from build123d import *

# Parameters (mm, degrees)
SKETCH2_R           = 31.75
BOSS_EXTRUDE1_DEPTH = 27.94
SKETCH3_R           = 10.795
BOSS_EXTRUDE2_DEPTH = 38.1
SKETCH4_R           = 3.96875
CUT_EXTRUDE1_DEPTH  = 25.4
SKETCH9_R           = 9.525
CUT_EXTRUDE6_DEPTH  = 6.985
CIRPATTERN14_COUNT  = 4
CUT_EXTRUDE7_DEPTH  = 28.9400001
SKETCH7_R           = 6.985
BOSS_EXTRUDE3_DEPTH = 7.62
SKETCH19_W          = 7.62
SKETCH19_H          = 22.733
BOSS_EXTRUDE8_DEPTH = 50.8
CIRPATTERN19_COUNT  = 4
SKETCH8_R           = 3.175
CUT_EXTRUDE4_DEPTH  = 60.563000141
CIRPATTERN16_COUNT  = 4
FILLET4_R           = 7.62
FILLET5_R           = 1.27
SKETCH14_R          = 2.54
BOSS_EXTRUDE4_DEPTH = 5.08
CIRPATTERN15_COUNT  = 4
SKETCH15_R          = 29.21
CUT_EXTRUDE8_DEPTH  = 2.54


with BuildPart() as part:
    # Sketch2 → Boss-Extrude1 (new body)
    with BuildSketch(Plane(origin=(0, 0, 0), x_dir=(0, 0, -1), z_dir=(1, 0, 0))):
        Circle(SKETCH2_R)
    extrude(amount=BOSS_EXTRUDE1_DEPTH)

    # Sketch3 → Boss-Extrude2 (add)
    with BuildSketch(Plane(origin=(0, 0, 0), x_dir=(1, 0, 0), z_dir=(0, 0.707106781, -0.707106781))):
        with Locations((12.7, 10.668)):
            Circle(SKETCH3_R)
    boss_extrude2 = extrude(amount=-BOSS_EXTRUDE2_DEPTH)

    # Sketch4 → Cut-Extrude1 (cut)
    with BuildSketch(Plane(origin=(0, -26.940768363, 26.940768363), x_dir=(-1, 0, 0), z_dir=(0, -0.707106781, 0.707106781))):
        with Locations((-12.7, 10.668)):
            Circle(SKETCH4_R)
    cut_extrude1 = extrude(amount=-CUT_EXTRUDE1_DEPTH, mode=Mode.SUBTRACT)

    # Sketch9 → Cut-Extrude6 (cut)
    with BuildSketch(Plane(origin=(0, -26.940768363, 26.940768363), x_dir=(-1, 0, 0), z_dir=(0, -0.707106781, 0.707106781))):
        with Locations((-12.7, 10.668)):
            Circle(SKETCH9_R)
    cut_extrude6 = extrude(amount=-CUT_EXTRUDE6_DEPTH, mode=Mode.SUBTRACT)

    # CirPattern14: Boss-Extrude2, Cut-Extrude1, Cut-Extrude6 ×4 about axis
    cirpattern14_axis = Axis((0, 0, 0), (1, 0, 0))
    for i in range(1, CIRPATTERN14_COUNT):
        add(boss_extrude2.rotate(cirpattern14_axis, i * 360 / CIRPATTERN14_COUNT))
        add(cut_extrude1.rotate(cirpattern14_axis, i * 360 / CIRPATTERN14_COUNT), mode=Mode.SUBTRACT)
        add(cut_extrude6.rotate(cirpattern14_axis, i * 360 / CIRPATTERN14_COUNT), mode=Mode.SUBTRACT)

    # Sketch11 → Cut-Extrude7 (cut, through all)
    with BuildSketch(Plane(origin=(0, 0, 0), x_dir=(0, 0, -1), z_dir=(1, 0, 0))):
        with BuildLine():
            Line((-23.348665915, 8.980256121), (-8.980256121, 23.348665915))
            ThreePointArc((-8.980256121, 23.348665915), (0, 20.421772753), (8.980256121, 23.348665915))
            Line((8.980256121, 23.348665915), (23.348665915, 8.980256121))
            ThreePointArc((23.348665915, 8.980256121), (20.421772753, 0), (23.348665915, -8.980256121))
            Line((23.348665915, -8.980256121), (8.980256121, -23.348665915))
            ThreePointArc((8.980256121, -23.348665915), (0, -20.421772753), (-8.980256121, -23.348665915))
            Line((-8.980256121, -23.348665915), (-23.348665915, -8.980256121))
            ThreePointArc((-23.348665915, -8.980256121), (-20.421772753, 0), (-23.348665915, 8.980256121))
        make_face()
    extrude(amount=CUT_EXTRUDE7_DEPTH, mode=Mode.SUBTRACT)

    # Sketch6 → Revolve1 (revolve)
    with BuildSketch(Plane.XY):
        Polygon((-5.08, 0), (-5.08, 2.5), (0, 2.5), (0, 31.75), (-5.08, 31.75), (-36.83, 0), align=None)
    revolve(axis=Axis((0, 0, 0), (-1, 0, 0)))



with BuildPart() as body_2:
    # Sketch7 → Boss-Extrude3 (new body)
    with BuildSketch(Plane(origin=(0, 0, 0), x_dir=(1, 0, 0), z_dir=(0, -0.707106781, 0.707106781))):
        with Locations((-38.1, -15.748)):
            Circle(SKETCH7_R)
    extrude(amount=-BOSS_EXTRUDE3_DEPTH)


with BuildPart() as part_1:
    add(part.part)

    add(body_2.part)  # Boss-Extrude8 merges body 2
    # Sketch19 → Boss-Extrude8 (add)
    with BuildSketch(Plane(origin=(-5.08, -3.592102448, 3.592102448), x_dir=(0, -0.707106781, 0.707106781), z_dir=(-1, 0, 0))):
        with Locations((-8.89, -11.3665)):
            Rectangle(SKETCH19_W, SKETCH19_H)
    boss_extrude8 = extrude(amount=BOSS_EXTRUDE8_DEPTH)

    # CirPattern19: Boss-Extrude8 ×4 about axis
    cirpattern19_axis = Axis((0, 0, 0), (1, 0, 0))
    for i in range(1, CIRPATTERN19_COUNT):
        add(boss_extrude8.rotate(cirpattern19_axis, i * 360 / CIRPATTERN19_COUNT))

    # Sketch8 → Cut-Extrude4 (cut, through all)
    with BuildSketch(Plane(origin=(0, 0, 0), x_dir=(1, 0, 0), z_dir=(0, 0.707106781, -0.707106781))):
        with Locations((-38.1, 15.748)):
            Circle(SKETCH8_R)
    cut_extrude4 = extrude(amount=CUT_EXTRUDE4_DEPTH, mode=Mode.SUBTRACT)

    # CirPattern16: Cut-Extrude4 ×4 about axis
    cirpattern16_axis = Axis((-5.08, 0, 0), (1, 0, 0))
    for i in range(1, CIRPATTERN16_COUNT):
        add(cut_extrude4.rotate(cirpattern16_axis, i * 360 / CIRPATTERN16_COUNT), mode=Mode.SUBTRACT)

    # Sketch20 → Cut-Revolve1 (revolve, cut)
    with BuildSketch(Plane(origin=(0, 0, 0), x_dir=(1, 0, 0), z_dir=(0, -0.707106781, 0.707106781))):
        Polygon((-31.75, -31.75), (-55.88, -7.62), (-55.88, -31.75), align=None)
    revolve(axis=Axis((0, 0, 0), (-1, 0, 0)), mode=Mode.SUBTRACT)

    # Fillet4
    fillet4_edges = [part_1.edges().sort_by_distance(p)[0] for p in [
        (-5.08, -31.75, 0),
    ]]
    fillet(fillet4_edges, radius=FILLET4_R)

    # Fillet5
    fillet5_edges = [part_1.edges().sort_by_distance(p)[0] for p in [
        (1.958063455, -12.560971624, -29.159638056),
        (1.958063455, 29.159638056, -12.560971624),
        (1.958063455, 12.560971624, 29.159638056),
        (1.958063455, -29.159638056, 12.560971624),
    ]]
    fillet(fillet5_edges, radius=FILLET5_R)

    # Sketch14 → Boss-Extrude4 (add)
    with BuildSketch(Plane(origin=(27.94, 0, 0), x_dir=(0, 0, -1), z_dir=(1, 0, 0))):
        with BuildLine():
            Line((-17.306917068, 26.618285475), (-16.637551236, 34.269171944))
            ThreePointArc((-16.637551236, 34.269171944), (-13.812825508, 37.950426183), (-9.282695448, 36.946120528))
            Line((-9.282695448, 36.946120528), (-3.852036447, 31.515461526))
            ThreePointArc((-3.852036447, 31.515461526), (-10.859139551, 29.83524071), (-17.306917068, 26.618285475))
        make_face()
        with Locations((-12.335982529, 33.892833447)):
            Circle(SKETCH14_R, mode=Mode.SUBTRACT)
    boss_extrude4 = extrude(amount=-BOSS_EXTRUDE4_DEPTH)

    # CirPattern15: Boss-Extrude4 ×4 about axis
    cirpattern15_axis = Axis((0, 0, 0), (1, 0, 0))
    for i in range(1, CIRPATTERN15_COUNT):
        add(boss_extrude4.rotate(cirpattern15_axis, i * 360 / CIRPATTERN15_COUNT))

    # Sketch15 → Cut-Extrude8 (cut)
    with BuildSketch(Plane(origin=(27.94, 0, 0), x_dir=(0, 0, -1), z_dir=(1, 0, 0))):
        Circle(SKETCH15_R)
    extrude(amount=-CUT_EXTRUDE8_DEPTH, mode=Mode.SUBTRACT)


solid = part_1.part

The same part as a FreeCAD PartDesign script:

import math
import FreeCAD as App
import Part
import Sketcher
Q = App.Units.Quantity


def edges_at(feature, points):
    """Names of the edges that pass closest to the given points."""
    edges = feature.Shape.Edges
    near = lambda p: min(range(len(edges)), key=lambda i: edges[i].distToShape(Part.Vertex(*p))[0])
    return sorted({f"Edge{near(p) + 1}" for p in points})

doc = App.newDocument("Part")
body = doc.addObject("PartDesign::Body", "Body")

sketch1 = body.newObject("Sketcher::SketchObject", "Sketch")
sketch1.AttachmentSupport = (doc.getObject("YZ_Plane"), [""])
sketch1.MapMode = "FlatFace"
sketch1.addGeometry(Part.Circle(App.Vector(0, 0, 0), App.Vector(0, 0, 1), 32), False)
sketch1.addConstraint(Sketcher.Constraint("Coincident", 0, 3, -1, 1))
sketch1.addConstraint(Sketcher.Constraint("Diameter", 0, Q("2.5 in")))
pad1 = body.newObject("PartDesign::Pad", "Pad")
pad1.Profile = sketch1
pad1.Length = Q("1.1 in")

sketch2 = body.newObject("Sketcher::SketchObject", "Sketch001")
sketch2.Placement = App.Placement(App.Vector(0, 0, 0), App.Rotation(App.Vector(1, 0, 0), App.Vector(0, -0.707106781, -0.707106781), App.Vector(0, 0.707106781, -0.707106781), "ZXY"))
sketch2.addGeometry(Part.Circle(App.Vector(13, 11, 0), App.Vector(0, 0, 1), 11), False)
sketch2.addConstraint(Sketcher.Constraint("Diameter", 0, Q("0.85 in")))
sketch2.addConstraint(Sketcher.Constraint("DistanceX", -1, 1, 0, 3, Q("0.5 in")))
sketch2.addConstraint(Sketcher.Constraint("DistanceY", -1, 1, 0, 3, Q("0.42 in")))
pad2 = body.newObject("PartDesign::Pad", "Pad001")
pad2.Profile = sketch2
pad2.Length = Q("1.5 in")
pad2.Reversed = True

sketch3 = body.newObject("Sketcher::SketchObject", "Sketch002")
sketch3.Placement = App.Placement(App.Vector(0, -26.940768, 26.940768), App.Rotation(App.Vector(-1, 0, 0), App.Vector(0, -0.707106781, -0.707106781), App.Vector(0, -0.707106781, 0.707106781), "ZXY"))
sketch3.addGeometry(Part.Circle(App.Vector(-12.7, 10.7, 0), App.Vector(0, 0, 1), 4), False)
sketch3.addConstraint(Sketcher.Constraint("Diameter", 0, Q("0.3125 in")))
sketch3.addConstraint(Sketcher.Constraint("DistanceX", 0, 3, -1, 1, Q("0.5 in")))
sketch3.addConstraint(Sketcher.Constraint("DistanceY", -1, 1, 0, 3, Q("0.42 in")))
pocket1 = body.newObject("PartDesign::Pocket", "Pocket")
pocket1.Profile = sketch3
pocket1.Length = Q("1 in")

sketch4 = body.newObject("Sketcher::SketchObject", "Sketch003")
sketch4.Placement = App.Placement(App.Vector(0, -26.940768, 26.940768), App.Rotation(App.Vector(-1, 0, 0), App.Vector(0, -0.707106781, -0.707106781), App.Vector(0, -0.707106781, 0.707106781), "ZXY"))
sketch4.addGeometry(Part.Circle(App.Vector(-13, 11, 0), App.Vector(0, 0, 1), 10), False)
sketch4.addConstraint(Sketcher.Constraint("Diameter", 0, Q("0.75 in")))
sketch4.addConstraint(Sketcher.Constraint("DistanceX", 0, 3, -1, 1, Q("0.5 in")))
sketch4.addConstraint(Sketcher.Constraint("DistanceY", -1, 1, 0, 3, Q("0.42 in")))
pocket2 = body.newObject("PartDesign::Pocket", "Pocket001")
pocket2.Profile = sketch4
pocket2.Length = Q("0.275 in")
doc.recompute()

polarpattern = body.newObject("PartDesign::PolarPattern", "PolarPattern")
polarpattern.Originals = [pad2, pocket1, pocket2]
polarpattern.Axis = (doc.getObject("X_Axis"), [""])
polarpattern.Angle = 360
polarpattern.Occurrences = 4
body.Tip = polarpattern

sketch5 = body.newObject("Sketcher::SketchObject", "Sketch004")
sketch5.AttachmentSupport = (doc.getObject("YZ_Plane"), [""])
sketch5.MapMode = "FlatFace"
sketch5.addGeometry(Part.LineSegment(App.Vector(23, 9, 0), App.Vector(9, 23, 0)), False)
sketch5.addGeometry(Part.ArcOfCircle(Part.Circle(App.Vector(0, 36, 0), App.Vector(0, 0, 1), 15), math.radians(-126), math.radians(-54)), False)
sketch5.addGeometry(Part.LineSegment(App.Vector(-9, 23, 0), App.Vector(-23, 9, 0)), False)
sketch5.addGeometry(Part.ArcOfCircle(Part.Circle(App.Vector(-36, 0, 0), App.Vector(0, 0, 1), 15), math.radians(-36), math.radians(36)), False)
sketch5.addGeometry(Part.LineSegment(App.Vector(-23, -9, 0), App.Vector(-9, -23, 0)), False)
sketch5.addGeometry(Part.ArcOfCircle(Part.Circle(App.Vector(0, -36, 0), App.Vector(0, 0, 1), 15), math.radians(54), math.radians(126)), False)
sketch5.addGeometry(Part.LineSegment(App.Vector(9, -23, 0), App.Vector(23, -9, 0)), False)
sketch5.addGeometry(Part.ArcOfCircle(Part.Circle(App.Vector(36, 0, 0), App.Vector(0, 0, 1), 15), math.radians(144), math.radians(216)), False)
sketch5.addConstraint(Sketcher.Constraint("Coincident", 0, 2, 1, 2))
sketch5.addConstraint(Sketcher.Constraint("Coincident", 1, 1, 2, 1))
sketch5.addConstraint(Sketcher.Constraint("Coincident", 2, 2, 3, 2))
sketch5.addConstraint(Sketcher.Constraint("Coincident", 3, 1, 4, 1))
sketch5.addConstraint(Sketcher.Constraint("Coincident", 4, 2, 5, 2))
sketch5.addConstraint(Sketcher.Constraint("Coincident", 5, 1, 6, 1))
sketch5.addConstraint(Sketcher.Constraint("Coincident", 6, 2, 7, 2))
sketch5.addConstraint(Sketcher.Constraint("Coincident", 7, 1, 0, 1))
sketch5.addConstraint(Sketcher.Constraint("Equal", 1, 3))
sketch5.addConstraint(Sketcher.Constraint("Equal", 3, 5))
sketch5.addConstraint(Sketcher.Constraint("Equal", 5, 7))
sketch5.addConstraint(Sketcher.Constraint("Symmetric", 1, 3, 5, 3, -1, 1))
sketch5.addConstraint(Sketcher.Constraint("Symmetric", 3, 3, 7, 3, -1, 1))
sketch5.addConstraint(Sketcher.Constraint("Symmetric", 0, 2, 1, 1, -2))
sketch5.addConstraint(Sketcher.Constraint("Symmetric", 3, 1, 6, 2, -2))
sketch5.addConstraint(Sketcher.Constraint("Perpendicular", 0, 2))
sketch5.addConstraint(Sketcher.Constraint("Perpendicular", 2, 4))
sketch5.addConstraint(Sketcher.Constraint("Perpendicular", 4, 6))
sketch5.addConstraint(Sketcher.Constraint("Horizontal", 4, 2, 5, 1))
sketch5.addConstraint(Sketcher.Constraint("Vertical", 2, 2, 3, 1))
sketch5.addConstraint(Sketcher.Constraint("Radius", 1, Q("0.6 in")))
sketch5.addConstraint(Sketcher.Constraint("Distance", 0, Q("0.8 in")))
sketch5.addConstraint(Sketcher.Constraint("DistanceX", 3, 3, 0, 2, 44.642029))
sketch5.addConstraint(Sketcher.Constraint("DistanceY", 5, 3, 0, 2, 59.010439))
pocket3 = body.newObject("PartDesign::Pocket", "Pocket002")
pocket3.Profile = sketch5
pocket3.Type = "ThroughAll"
pocket3.Reversed = True

sketch6 = body.newObject("Sketcher::SketchObject", "Sketch005")
sketch6.AttachmentSupport = (doc.getObject("XY_Plane"), [""])
sketch6.MapMode = "FlatFace"
sketch6.addGeometry(Part.LineSegment(App.Vector(-5.1, 0, 0), App.Vector(-5.1, 2.5, 0)), False)
sketch6.addGeometry(Part.LineSegment(App.Vector(-5.1, 2.5, 0), App.Vector(0, 2.5, 0)), False)
sketch6.addGeometry(Part.LineSegment(App.Vector(0, 2.5, 0), App.Vector(0, 31.8, 0)), False)
sketch6.addGeometry(Part.LineSegment(App.Vector(0, 31.8, 0), App.Vector(-5.1, 31.8, 0)), False)
sketch6.addGeometry(Part.LineSegment(App.Vector(-5.1, 31.8, 0), App.Vector(-36.8, 0, 0)), False)
sketch6.addGeometry(Part.LineSegment(App.Vector(-36.8, 0, 0), App.Vector(-5.1, 0, 0)), False)
sketch6.addConstraint(Sketcher.Constraint("Coincident", 0, 2, 1, 1))
sketch6.addConstraint(Sketcher.Constraint("Coincident", 1, 2, 2, 1))
sketch6.addConstraint(Sketcher.Constraint("Coincident", 2, 2, 3, 1))
sketch6.addConstraint(Sketcher.Constraint("Coincident", 3, 2, 4, 1))
sketch6.addConstraint(Sketcher.Constraint("Coincident", 4, 2, 5, 1))
sketch6.addConstraint(Sketcher.Constraint("Coincident", 5, 2, 0, 1))
sketch6.addConstraint(Sketcher.Constraint("Vertical", 0))
sketch6.addConstraint(Sketcher.Constraint("Horizontal", 1))
sketch6.addConstraint(Sketcher.Constraint("Vertical", 2))
sketch6.addConstraint(Sketcher.Constraint("Horizontal", 3))
sketch6.addConstraint(Sketcher.Constraint("Horizontal", 5))
sketch6.addConstraint(Sketcher.Constraint("PointOnObject", 1, 2, -2))
sketch6.addConstraint(Sketcher.Constraint("PointOnObject", 4, 2, -1))
sketch6.addConstraint(Sketcher.Constraint("Vertical", 0, 2, 3, 2))
sketch6.addConstraint(Sketcher.Constraint("DistanceX", 1, 1, 1, 2, Q("0.2 in")))
sketch6.addConstraint(Sketcher.Constraint("Angle", 4, Q("-135 deg")))
sketch6.addConstraint(Sketcher.Constraint("DistanceX", 5, 1, 5, 2, Q("1.25 in")))
sketch6.addConstraint(Sketcher.Constraint("DistanceY", 0, 1, 0, 2, 2.5))
revolution = body.newObject("PartDesign::Revolution", "Revolution")
revolution.Profile = sketch6
revolution.ReferenceAxis = (sketch6, ["H_Axis"])
revolution.Angle = 360
body2 = doc.addObject("PartDesign::Body", "Body001")

sketch7 = body2.newObject("Sketcher::SketchObject", "Sketch006")
sketch7.Placement = App.Placement(App.Vector(0, 0, 0), App.Rotation(App.Vector(1, 0, 0), App.Vector(0, 0.707106781, 0.707106781), App.Vector(0, -0.707106781, 0.707106781), "ZXY"))
sketch7.addGeometry(Part.Circle(App.Vector(-38, -16, 0), App.Vector(0, 0, 1), 7), False)
sketch7.addConstraint(Sketcher.Constraint("Diameter", 0, Q("0.55 in")))
sketch7.addConstraint(Sketcher.Constraint("DistanceX", 0, 3, -1, 1, Q("1.5 in")))
sketch7.addConstraint(Sketcher.Constraint("DistanceY", 0, 3, -1, 1, Q("0.62 in")))
pad3 = body2.newObject("PartDesign::Pad", "Pad002")
pad3.Profile = sketch7
pad3.Length = Q("0.3 in")
pad3.Reversed = True
body.AllowCompound = True
doc.recompute()

boolean = body.newObject("PartDesign::Boolean", "Boolean")
boolean.Type = "Fuse"
boolean.addObjects([body2])

sketch8 = body.newObject("Sketcher::SketchObject", "Sketch007")
sketch8.AttachmentSupport = (doc.getObject("YZ_Plane"), [""])
sketch8.MapMode = "FlatFace"
sketch8.AttachmentOffset = App.Placement(App.Vector(0, 0, -0.2 * 25.4), App.Rotation())
sketch8.addGeometry(Part.LineSegment(App.Vector(5, -5, 0), App.Vector(-11, -21, 0)), False)
sketch8.addGeometry(Part.LineSegment(App.Vector(-11, -21, 0), App.Vector(-16, -16, 0)), False)
sketch8.addGeometry(Part.LineSegment(App.Vector(-16, -16, 0), App.Vector(0, 0, 0)), False)
sketch8.addGeometry(Part.LineSegment(App.Vector(0, 0, 0), App.Vector(5, -5, 0)), False)
sketch8.addConstraint(Sketcher.Constraint("Coincident", 0, 2, 1, 1))
sketch8.addConstraint(Sketcher.Constraint("Coincident", 1, 2, 2, 1))
sketch8.addConstraint(Sketcher.Constraint("Coincident", 2, 2, 3, 1))
sketch8.addConstraint(Sketcher.Constraint("Coincident", 3, 2, 0, 1))
sketch8.addConstraint(Sketcher.Constraint("Coincident", 2, 2, -1, 1))
sketch8.addConstraint(Sketcher.Constraint("Perpendicular", 0, 1))
sketch8.addConstraint(Sketcher.Constraint("Perpendicular", 1, 2))
sketch8.addConstraint(Sketcher.Constraint("Perpendicular", 2, 3))
sketch8.addConstraint(Sketcher.Constraint("Angle", 0, Q("-135 deg")))
sketch8.addConstraint(Sketcher.Constraint("Distance", 1, Q("0.3 in")))
sketch8.addConstraint(Sketcher.Constraint("Distance", 0, Q("0.895 in")))
pad4 = body.newObject("PartDesign::Pad", "Pad003")
pad4.Profile = sketch8
pad4.Length = Q("2 in")
pad4.Reversed = True
doc.recompute()

polarpattern2 = body.newObject("PartDesign::PolarPattern", "PolarPattern001")
polarpattern2.Originals = [pad4]
polarpattern2.Axis = (doc.getObject("X_Axis"), [""])
polarpattern2.Angle = 360
polarpattern2.Occurrences = 4
body.Tip = polarpattern2

sketch9 = body.newObject("Sketcher::SketchObject", "Sketch008")
sketch9.Placement = App.Placement(App.Vector(0, 0, 0), App.Rotation(App.Vector(1, 0, 0), App.Vector(0, -0.707106781, -0.707106781), App.Vector(0, 0.707106781, -0.707106781), "ZXY"))
sketch9.addGeometry(Part.Circle(App.Vector(-38.1, 15.7, 0), App.Vector(0, 0, 1), 3.2), False)
sketch9.addConstraint(Sketcher.Constraint("Diameter", 0, Q("0.25 in")))
sketch9.addConstraint(Sketcher.Constraint("DistanceX", 0, 3, -1, 1, Q("1.5 in")))
sketch9.addConstraint(Sketcher.Constraint("DistanceY", -1, 1, 0, 3, Q("0.62 in")))
pocket4 = body.newObject("PartDesign::Pocket", "Pocket003")
pocket4.Profile = sketch9
pocket4.Type = "ThroughAll"
pocket4.Reversed = True
doc.recompute()

polarpattern3 = body.newObject("PartDesign::PolarPattern", "PolarPattern002")
polarpattern3.Originals = [pocket4]
polarpattern3.Axis = (doc.getObject("X_Axis"), [""])
polarpattern3.Angle = 360
polarpattern3.Occurrences = 4
body.Tip = polarpattern3

sketch10 = body.newObject("Sketcher::SketchObject", "Sketch009")
sketch10.Placement = App.Placement(App.Vector(0, 0, 0), App.Rotation(App.Vector(1, 0, 0), App.Vector(0, 0.707106781, 0.707106781), App.Vector(0, -0.707106781, 0.707106781), "ZXY"))
sketch10.addGeometry(Part.LineSegment(App.Vector(-32, -32, 0), App.Vector(-56, -8, 0)), False)
sketch10.addGeometry(Part.LineSegment(App.Vector(-56, -8, 0), App.Vector(-56, -32, 0)), False)
sketch10.addGeometry(Part.LineSegment(App.Vector(-56, -32, 0), App.Vector(-32, -32, 0)), False)
sketch10.addConstraint(Sketcher.Constraint("Coincident", 0, 2, 1, 1))
sketch10.addConstraint(Sketcher.Constraint("Coincident", 1, 2, 2, 1))
sketch10.addConstraint(Sketcher.Constraint("Coincident", 2, 2, 0, 1))
sketch10.addConstraint(Sketcher.Constraint("Vertical", 1))
sketch10.addConstraint(Sketcher.Constraint("Horizontal", 2))
sketch10.addConstraint(Sketcher.Constraint("Equal", 2, 1))
sketch10.addConstraint(Sketcher.Constraint("DistanceX", 2, 1, 2, 2, Q("0.95 in")))
sketch10.addConstraint(Sketcher.Constraint("DistanceX", 0, 2, -1, 1, Q("2.2 in")))
sketch10.addConstraint(Sketcher.Constraint("DistanceY", 0, 2, -1, 1, Q("0.3 in")))
groove = body.newObject("PartDesign::Groove", "Groove")
groove.Profile = sketch10
groove.ReferenceAxis = (sketch10, ["H_Axis"])
groove.Angle = 360
doc.recompute()

fillet = body.newObject("PartDesign::Fillet", "Fillet")
fillet.Base = (groove, edges_at(groove, [(-5.08, -31.75, 0)]))
fillet.Radius = Q("0.3 in")
doc.recompute()

fillet2 = body.newObject("PartDesign::Fillet", "Fillet001")
fillet2.Base = (fillet, edges_at(fillet, [
    (1.958, -12.561, -29.16),
    (1.958, 29.16, -12.561),
    (1.958, 12.561, 29.16),
    (1.958, -29.16, 12.561),
]))
fillet2.Radius = Q("0.05 in")

sketch11 = body.newObject("Sketcher::SketchObject", "Sketch010")
sketch11.AttachmentSupport = (doc.getObject("YZ_Plane"), [""])
sketch11.MapMode = "FlatFace"
sketch11.AttachmentOffset = App.Placement(App.Vector(0, 0, 1.1 * 25.4), App.Rotation())
sketch11.addGeometry(Part.LineSegment(App.Vector(34.3, 16.6, 0), App.Vector(26.6, 17.3, 0)), False)
sketch11.addGeometry(Part.ArcOfCircle(Part.Circle(App.Vector(0, 0, 0), App.Vector(0, 0, 1), 31.7), math.radians(7), math.radians(33)), False)
sketch11.addGeometry(Part.LineSegment(App.Vector(31.5, 3.9, 0), App.Vector(36.9, 9.3, 0)), False)
sketch11.addGeometry(Part.ArcOfCircle(Part.Circle(App.Vector(33.9, 12.3, 0), App.Vector(0, 0, 1), 4.3), math.radians(-45), math.radians(85)), False)
sketch11.addGeometry(Part.Circle(App.Vector(33.9, 12.3, 0), App.Vector(0, 0, 1), 2.5), False)
sketch11.addConstraint(Sketcher.Constraint("Coincident", 0, 2, 1, 2))
sketch11.addConstraint(Sketcher.Constraint("Coincident", 1, 1, 2, 1))
sketch11.addConstraint(Sketcher.Constraint("Tangent", 2, 2, 3, 1))
sketch11.addConstraint(Sketcher.Constraint("Tangent", 3, 2, 0, 1))
sketch11.addConstraint(Sketcher.Constraint("Coincident", 1, 3, -1, 1))
sketch11.addConstraint(Sketcher.Constraint("Coincident", 4, 3, 3, 3))
sketch11.addConstraint(Sketcher.Constraint("Equal", 0, 2))
sketch11.addConstraint(Sketcher.Constraint("Diameter", 4, Q("0.2 in")))
sketch11.addConstraint(Sketcher.Constraint("Radius", 1, Q("1.25 in")))
sketch11.addConstraint(Sketcher.Constraint("Radius", 3, Q("0.17 in")))
sketch11.addConstraint(Sketcher.Constraint("Angle", 0, Q("175 deg")))
sketch11.addConstraint(Sketcher.Constraint("Angle", 2, Q("45 deg")))
sketch11.addConstraint(Sketcher.Constraint("Distance", 0, 7.680112))
pad5 = body.newObject("PartDesign::Pad", "Pad004")
pad5.Profile = sketch11
pad5.Length = Q("0.2 in")
pad5.Reversed = True
doc.recompute()

polarpattern4 = body.newObject("PartDesign::PolarPattern", "PolarPattern003")
polarpattern4.Originals = [pad5]
polarpattern4.Axis = (doc.getObject("X_Axis"), [""])
polarpattern4.Angle = 360
polarpattern4.Occurrences = 4
body.Tip = polarpattern4

sketch12 = body.newObject("Sketcher::SketchObject", "Sketch011")
sketch12.AttachmentSupport = (doc.getObject("YZ_Plane"), [""])
sketch12.MapMode = "FlatFace"
sketch12.AttachmentOffset = App.Placement(App.Vector(0, 0, 1.1 * 25.4), App.Rotation())
sketch12.addGeometry(Part.Circle(App.Vector(0, 0, 0), App.Vector(0, 0, 1), 29), False)
sketch12.addConstraint(Sketcher.Constraint("Coincident", 0, 3, -1, 1))
sketch12.addConstraint(Sketcher.Constraint("Diameter", 0, Q("2.3 in")))
pocket5 = body.newObject("PartDesign::Pocket", "Pocket004")
pocket5.Profile = sketch12
pocket5.Length = Q("0.1 in")

doc.recompute()
